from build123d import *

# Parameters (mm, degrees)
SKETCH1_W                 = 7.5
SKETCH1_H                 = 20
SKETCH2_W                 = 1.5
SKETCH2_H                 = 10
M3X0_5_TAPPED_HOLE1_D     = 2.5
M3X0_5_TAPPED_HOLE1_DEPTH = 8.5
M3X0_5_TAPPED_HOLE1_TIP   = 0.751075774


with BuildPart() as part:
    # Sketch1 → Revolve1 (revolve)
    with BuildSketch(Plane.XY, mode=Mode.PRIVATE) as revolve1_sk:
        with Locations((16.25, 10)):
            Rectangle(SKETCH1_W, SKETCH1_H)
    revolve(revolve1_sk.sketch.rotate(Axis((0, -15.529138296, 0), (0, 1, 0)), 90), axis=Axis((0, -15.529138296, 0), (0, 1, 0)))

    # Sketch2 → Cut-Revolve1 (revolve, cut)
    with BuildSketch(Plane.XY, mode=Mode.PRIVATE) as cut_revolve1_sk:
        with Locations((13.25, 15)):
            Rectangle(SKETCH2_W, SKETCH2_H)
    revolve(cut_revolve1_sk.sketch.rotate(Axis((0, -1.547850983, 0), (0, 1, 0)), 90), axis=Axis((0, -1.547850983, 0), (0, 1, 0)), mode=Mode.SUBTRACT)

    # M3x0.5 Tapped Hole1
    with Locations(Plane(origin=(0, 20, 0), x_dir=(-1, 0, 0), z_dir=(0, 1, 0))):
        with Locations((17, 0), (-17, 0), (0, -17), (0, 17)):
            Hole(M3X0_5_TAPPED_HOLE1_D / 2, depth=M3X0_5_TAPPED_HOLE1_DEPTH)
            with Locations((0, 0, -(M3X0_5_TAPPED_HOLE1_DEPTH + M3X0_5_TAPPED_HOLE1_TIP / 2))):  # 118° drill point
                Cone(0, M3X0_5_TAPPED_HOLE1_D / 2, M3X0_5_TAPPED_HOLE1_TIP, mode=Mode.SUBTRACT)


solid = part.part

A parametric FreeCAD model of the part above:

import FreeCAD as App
import Part
import Sketcher
Q = App.Units.Quantity

doc = App.newDocument("Part")
params = doc.addObject("Spreadsheet::Sheet", "Params")
for row, (alias, value) in enumerate([
    ("sketch1_height", "20 mm"),
    ("sketch1_width", "7.5 mm"),
    ("revolution_angle", "360 deg"),
    ("sketch2_height", "10 mm"),
    ("sketch2_width", "1.5 mm"),
    ("groove_angle", "360 deg"),
    ("sketch3_diameter", "2.5 mm"),
    ("hole_diameter", "2.5 mm"),
    ("hole_depth", "8.5 mm"),
], start=1):
    params.set(f"A{row}", alias)
    params.set(f"B{row}", "=" + value)
    params.setAlias(f"B{row}", alias)

body = doc.addObject("PartDesign::Body", "Body")

sketch1 = doc.addObject("Sketcher::SketchObject", "Sketch")
body.addObject(sketch1)
sketch1.AttachmentSupport = (doc.XY_Plane, [""])
sketch1.MapMode = "FlatFace"
sketch1.addGeometry([
    Part.LineSegment(App.Vector(12, 20, 0), App.Vector(12, 0, 0)),
    Part.LineSegment(App.Vector(12, 0, 0), App.Vector(20, 0, 0)),
    Part.LineSegment(App.Vector(20, 0, 0), App.Vector(20, 20, 0)),
    Part.LineSegment(App.Vector(20, 20, 0), App.Vector(12, 20, 0)),
], False)
sketch1.addConstraint([
    Sketcher.Constraint("Coincident", 0, 2, 1, 1),
    Sketcher.Constraint("Coincident", 1, 2, 2, 1),
    Sketcher.Constraint("Coincident", 2, 2, 3, 1),
    Sketcher.Constraint("Coincident", 3, 2, 0, 1),
    Sketcher.Constraint("Vertical", 0),
    Sketcher.Constraint("Horizontal", 1),
    Sketcher.Constraint("Vertical", 2),
    Sketcher.Constraint("Horizontal", 3),
    Sketcher.Constraint("PointOnObject", 0, 2, -1),
    Sketcher.Constraint("DistanceY", 0, 2, 0, 1, Q("20 mm")),
    Sketcher.Constraint("DistanceX", 1, 1, 1, 2, Q("7.5 mm")),
    Sketcher.Constraint("DistanceX", -1, 1, 1, 2, Q("20 mm")),
])
sketch1.setExpression("Constraints[9]", "Params.sketch1_height")
sketch1.setExpression("Constraints[10]", "Params.sketch1_width")
revolution = doc.addObject("PartDesign::Revolution", "Revolution")
body.addObject(revolution)
revolution.Profile = sketch1
revolution.ReferenceAxis = (sketch1, ["V_Axis"])
revolution.setExpression("Angle", "Params.revolution_angle")

sketch2 = doc.addObject("Sketcher::SketchObject", "Sketch001")
body.addObject(sketch2)
sketch2.AttachmentSupport = (doc.XY_Plane, [""])
sketch2.MapMode = "FlatFace"
sketch2.addGeometry([
    Part.LineSegment(App.Vector(12.5, 20, 0), App.Vector(12.5, 10, 0)),
    Part.LineSegment(App.Vector(12.5, 10, 0), App.Vector(14, 10, 0)),
    Part.LineSegment(App.Vector(14, 10, 0), App.Vector(14, 20, 0)),
    Part.LineSegment(App.Vector(14, 20, 0), App.Vector(12.5, 20, 0)),
], False)
sketch2.addConstraint([
    Sketcher.Constraint("Coincident", 0, 2, 1, 1),
    Sketcher.Constraint("Coincident", 1, 2, 2, 1),
    Sketcher.Constraint("Coincident", 2, 2, 3, 1),
    Sketcher.Constraint("Coincident", 3, 2, 0, 1),
    Sketcher.Constraint("Vertical", 0),
    Sketcher.Constraint("Horizontal", 1),
    Sketcher.Constraint("Vertical", 2),
    Sketcher.Constraint("Horizontal", 3),
    Sketcher.Constraint("DistanceY", 0, 2, 0, 1, Q("10 mm")),
    Sketcher.Constraint("DistanceX", 1, 1, 1, 2, Q("1.5 mm")),
    Sketcher.Constraint("DistanceY", -1, 1, 0, 2, Q("10 mm")),
    Sketcher.Constraint("DistanceX", -1, 1, 1, 2, Q("14 mm")),
])
sketch2.setExpression("Constraints[8]", "Params.sketch2_height")
sketch2.setExpression("Constraints[9]", "Params.sketch2_width")
groove = doc.addObject("PartDesign::Groove", "Groove")
body.addObject(groove)
groove.Profile = sketch2
groove.ReferenceAxis = (sketch2, ["V_Axis"])
groove.setExpression("Angle", "Params.groove_angle")

sketch3 = doc.addObject("Sketcher::SketchObject", "Sketch002")
body.addObject(sketch3)
sketch3.AttachmentSupport = (doc.XZ_Plane, [""])
sketch3.MapMode = "FlatFace"
sketch3.AttachmentOffset = App.Placement(App.Vector(0, 0, -20), App.Rotation())
sketch3.addGeometry([
    Part.Circle(App.Vector(-17, 0, 0), App.Vector(0, 0, 1), 1.2),
    Part.Circle(App.Vector(17, 0, 0), App.Vector(0, 0, 1), 1.2),
    Part.Circle(App.Vector(0, -17, 0), App.Vector(0, 0, 1), 1.2),
    Part.Circle(App.Vector(0, 17, 0), App.Vector(0, 0, 1), 1.2),
], False)
sketch3.addConstraint([
    Sketcher.Constraint("Equal", 0, 1),
    Sketcher.Constraint("Equal", 1, 2),
    Sketcher.Constraint("Equal", 2, 3),
    Sketcher.Constraint("Symmetric", 0, 3, 1, 3, -1, 1),
    Sketcher.Constraint("Symmetric", 2, 3, 3, 3, -1, 1),
    Sketcher.Constraint("PointOnObject", 0, 3, -1),
    Sketcher.Constraint("PointOnObject", 2, 3, -2),
    Sketcher.Constraint("Diameter", 0, Q("2.5 mm")),
    Sketcher.Constraint("DistanceX", 0, 3, -1, 1, Q("17 mm")),
    Sketcher.Constraint("DistanceY", 2, 3, -1, 1, Q("17 mm")),
])
sketch3.setExpression("Constraints[7]", "Params.sketch3_diameter")
doc.recompute()
hole = doc.addObject("PartDesign::Hole", "Hole")
body.addObject(hole)
hole.Profile = sketch3
hole.ThreadType = "None"
hole.setExpression("Diameter", "Params.hole_diameter")
hole.DepthType = "Dimension"
hole.setExpression("Depth", "Params.hole_depth")
hole.DrillPoint = "Angled"
hole.DrillPointAngle = 118
hole.Reversed = True

doc.recompute()
